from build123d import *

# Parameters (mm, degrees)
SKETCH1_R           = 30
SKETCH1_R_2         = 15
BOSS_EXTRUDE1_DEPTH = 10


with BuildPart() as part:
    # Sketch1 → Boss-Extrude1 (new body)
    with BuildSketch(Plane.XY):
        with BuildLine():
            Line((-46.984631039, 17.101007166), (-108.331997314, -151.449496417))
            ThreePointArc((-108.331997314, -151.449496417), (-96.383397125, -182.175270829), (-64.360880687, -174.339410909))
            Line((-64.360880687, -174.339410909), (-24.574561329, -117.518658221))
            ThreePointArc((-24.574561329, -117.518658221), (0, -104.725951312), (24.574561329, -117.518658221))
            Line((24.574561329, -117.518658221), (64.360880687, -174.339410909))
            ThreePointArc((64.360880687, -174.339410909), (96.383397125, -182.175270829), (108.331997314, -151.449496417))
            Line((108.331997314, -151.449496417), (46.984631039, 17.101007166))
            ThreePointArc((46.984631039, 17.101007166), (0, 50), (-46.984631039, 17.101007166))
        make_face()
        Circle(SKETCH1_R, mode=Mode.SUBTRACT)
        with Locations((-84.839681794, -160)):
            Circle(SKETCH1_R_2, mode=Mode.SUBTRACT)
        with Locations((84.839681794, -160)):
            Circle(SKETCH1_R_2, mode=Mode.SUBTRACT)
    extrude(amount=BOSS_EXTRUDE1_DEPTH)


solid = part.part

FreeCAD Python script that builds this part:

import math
import FreeCAD as App
import Part
import Sketcher
from FreeCAD import Vector
Q = App.Units.Quantity

doc = App.newDocument("Part")
body = doc.addObject("PartDesign::Body", "Body")

# Sketch on XY plane
sketch1 = body.newObject("Sketcher::SketchObject", "Sketch")
sketch1.AttachmentSupport = (doc.getObject("XY_Plane"), [""])
sketch1.MapMode = "FlatFace"
sketch1.addGeometry([
    Part.LineSegment(Vector(-46.984631, 17.101007, 0), Vector(-108.331997, -151.449496, 0)),  # 0
    Part.ArcOfCircle(Part.Circle(Vector(-84.839682, -160, 0), Vector(0, 0, 1), 25), math.radians(160), math.radians(325)),  # 1
    Part.LineSegment(Vector(-64.360881, -174.339411, 0), Vector(-24.574561, -117.518658, 0)),  # 2
    Part.ArcOfCircle(Part.Circle(Vector(0, -134.725951, 0), Vector(0, 0, 1), 30), math.radians(35), math.radians(145)),  # 3
    Part.LineSegment(Vector(24.574561, -117.518658, 0), Vector(64.360881, -174.339411, 0)),  # 4
    Part.ArcOfCircle(Part.Circle(Vector(84.839682, -160, 0), Vector(0, 0, 1), 25), math.radians(-145), math.radians(20)),  # 5
    Part.LineSegment(Vector(108.331997, -151.449496, 0), Vector(46.984631, 17.101007, 0)),  # 6
    Part.ArcOfCircle(Part.Circle(Vector(0, 0, 0), Vector(0, 0, 1), 50), math.radians(20), math.radians(160)),  # 7
    Part.Circle(Vector(-84.839682, -160, 0), Vector(0, 0, 1), 15),  # 8
    Part.Circle(Vector(84.839682, -160, 0), Vector(0, 0, 1), 15),  # 9
    Part.Circle(Vector(0, 0, 0), Vector(0, 0, 1), 30),  # 10
], False)
sketch1.addConstraint([
    Sketcher.Constraint("Tangent", 0, 2, 1, 1),
    Sketcher.Constraint("Tangent", 1, 2, 2, 1),
    Sketcher.Constraint("Tangent", 2, 2, 3, 2),
    Sketcher.Constraint("Tangent", 3, 1, 4, 1),
    Sketcher.Constraint("Tangent", 4, 2, 5, 1),
    Sketcher.Constraint("Tangent", 5, 2, 6, 1),
    Sketcher.Constraint("Tangent", 6, 2, 7, 1),
    Sketcher.Constraint("Tangent", 7, 2, 0, 1),
    Sketcher.Constraint("Coincident", 7, 3, -1, 1),
    Sketcher.Constraint("Coincident", 10, 3, -1, 1),
    Sketcher.Constraint("Coincident", 8, 3, 1, 3),
    Sketcher.Constraint("Coincident", 9, 3, 5, 3),
    Sketcher.Constraint("Equal", 1, 5),
    Sketcher.Constraint("Equal", 8, 9),
    Sketcher.Constraint("Equal", 3, 10),
    Sketcher.Constraint("Symmetric", 1, 3, 5, 3, -2),
    Sketcher.Constraint("PointOnObject", 3, 3, -2),
    Sketcher.Constraint("Diameter", 8, 30.0),
    Sketcher.Constraint("Diameter", 10, 60.0),
    Sketcher.Constraint("Radius", 1, 25.0),
    Sketcher.Constraint("Radius", 7, 50.0),
    Sketcher.Constraint("Angle", 0, Q("-110 deg")),
    Sketcher.Constraint("Angle", 2, Q("55 deg")),
    Sketcher.Constraint("DistanceY", 1, 3, -1, 1, 160.0),
])
pad1 = body.newObject("PartDesign::Pad", "Pad")
pad1.Profile = sketch1
pad1.Length = 10

doc.recompute()
